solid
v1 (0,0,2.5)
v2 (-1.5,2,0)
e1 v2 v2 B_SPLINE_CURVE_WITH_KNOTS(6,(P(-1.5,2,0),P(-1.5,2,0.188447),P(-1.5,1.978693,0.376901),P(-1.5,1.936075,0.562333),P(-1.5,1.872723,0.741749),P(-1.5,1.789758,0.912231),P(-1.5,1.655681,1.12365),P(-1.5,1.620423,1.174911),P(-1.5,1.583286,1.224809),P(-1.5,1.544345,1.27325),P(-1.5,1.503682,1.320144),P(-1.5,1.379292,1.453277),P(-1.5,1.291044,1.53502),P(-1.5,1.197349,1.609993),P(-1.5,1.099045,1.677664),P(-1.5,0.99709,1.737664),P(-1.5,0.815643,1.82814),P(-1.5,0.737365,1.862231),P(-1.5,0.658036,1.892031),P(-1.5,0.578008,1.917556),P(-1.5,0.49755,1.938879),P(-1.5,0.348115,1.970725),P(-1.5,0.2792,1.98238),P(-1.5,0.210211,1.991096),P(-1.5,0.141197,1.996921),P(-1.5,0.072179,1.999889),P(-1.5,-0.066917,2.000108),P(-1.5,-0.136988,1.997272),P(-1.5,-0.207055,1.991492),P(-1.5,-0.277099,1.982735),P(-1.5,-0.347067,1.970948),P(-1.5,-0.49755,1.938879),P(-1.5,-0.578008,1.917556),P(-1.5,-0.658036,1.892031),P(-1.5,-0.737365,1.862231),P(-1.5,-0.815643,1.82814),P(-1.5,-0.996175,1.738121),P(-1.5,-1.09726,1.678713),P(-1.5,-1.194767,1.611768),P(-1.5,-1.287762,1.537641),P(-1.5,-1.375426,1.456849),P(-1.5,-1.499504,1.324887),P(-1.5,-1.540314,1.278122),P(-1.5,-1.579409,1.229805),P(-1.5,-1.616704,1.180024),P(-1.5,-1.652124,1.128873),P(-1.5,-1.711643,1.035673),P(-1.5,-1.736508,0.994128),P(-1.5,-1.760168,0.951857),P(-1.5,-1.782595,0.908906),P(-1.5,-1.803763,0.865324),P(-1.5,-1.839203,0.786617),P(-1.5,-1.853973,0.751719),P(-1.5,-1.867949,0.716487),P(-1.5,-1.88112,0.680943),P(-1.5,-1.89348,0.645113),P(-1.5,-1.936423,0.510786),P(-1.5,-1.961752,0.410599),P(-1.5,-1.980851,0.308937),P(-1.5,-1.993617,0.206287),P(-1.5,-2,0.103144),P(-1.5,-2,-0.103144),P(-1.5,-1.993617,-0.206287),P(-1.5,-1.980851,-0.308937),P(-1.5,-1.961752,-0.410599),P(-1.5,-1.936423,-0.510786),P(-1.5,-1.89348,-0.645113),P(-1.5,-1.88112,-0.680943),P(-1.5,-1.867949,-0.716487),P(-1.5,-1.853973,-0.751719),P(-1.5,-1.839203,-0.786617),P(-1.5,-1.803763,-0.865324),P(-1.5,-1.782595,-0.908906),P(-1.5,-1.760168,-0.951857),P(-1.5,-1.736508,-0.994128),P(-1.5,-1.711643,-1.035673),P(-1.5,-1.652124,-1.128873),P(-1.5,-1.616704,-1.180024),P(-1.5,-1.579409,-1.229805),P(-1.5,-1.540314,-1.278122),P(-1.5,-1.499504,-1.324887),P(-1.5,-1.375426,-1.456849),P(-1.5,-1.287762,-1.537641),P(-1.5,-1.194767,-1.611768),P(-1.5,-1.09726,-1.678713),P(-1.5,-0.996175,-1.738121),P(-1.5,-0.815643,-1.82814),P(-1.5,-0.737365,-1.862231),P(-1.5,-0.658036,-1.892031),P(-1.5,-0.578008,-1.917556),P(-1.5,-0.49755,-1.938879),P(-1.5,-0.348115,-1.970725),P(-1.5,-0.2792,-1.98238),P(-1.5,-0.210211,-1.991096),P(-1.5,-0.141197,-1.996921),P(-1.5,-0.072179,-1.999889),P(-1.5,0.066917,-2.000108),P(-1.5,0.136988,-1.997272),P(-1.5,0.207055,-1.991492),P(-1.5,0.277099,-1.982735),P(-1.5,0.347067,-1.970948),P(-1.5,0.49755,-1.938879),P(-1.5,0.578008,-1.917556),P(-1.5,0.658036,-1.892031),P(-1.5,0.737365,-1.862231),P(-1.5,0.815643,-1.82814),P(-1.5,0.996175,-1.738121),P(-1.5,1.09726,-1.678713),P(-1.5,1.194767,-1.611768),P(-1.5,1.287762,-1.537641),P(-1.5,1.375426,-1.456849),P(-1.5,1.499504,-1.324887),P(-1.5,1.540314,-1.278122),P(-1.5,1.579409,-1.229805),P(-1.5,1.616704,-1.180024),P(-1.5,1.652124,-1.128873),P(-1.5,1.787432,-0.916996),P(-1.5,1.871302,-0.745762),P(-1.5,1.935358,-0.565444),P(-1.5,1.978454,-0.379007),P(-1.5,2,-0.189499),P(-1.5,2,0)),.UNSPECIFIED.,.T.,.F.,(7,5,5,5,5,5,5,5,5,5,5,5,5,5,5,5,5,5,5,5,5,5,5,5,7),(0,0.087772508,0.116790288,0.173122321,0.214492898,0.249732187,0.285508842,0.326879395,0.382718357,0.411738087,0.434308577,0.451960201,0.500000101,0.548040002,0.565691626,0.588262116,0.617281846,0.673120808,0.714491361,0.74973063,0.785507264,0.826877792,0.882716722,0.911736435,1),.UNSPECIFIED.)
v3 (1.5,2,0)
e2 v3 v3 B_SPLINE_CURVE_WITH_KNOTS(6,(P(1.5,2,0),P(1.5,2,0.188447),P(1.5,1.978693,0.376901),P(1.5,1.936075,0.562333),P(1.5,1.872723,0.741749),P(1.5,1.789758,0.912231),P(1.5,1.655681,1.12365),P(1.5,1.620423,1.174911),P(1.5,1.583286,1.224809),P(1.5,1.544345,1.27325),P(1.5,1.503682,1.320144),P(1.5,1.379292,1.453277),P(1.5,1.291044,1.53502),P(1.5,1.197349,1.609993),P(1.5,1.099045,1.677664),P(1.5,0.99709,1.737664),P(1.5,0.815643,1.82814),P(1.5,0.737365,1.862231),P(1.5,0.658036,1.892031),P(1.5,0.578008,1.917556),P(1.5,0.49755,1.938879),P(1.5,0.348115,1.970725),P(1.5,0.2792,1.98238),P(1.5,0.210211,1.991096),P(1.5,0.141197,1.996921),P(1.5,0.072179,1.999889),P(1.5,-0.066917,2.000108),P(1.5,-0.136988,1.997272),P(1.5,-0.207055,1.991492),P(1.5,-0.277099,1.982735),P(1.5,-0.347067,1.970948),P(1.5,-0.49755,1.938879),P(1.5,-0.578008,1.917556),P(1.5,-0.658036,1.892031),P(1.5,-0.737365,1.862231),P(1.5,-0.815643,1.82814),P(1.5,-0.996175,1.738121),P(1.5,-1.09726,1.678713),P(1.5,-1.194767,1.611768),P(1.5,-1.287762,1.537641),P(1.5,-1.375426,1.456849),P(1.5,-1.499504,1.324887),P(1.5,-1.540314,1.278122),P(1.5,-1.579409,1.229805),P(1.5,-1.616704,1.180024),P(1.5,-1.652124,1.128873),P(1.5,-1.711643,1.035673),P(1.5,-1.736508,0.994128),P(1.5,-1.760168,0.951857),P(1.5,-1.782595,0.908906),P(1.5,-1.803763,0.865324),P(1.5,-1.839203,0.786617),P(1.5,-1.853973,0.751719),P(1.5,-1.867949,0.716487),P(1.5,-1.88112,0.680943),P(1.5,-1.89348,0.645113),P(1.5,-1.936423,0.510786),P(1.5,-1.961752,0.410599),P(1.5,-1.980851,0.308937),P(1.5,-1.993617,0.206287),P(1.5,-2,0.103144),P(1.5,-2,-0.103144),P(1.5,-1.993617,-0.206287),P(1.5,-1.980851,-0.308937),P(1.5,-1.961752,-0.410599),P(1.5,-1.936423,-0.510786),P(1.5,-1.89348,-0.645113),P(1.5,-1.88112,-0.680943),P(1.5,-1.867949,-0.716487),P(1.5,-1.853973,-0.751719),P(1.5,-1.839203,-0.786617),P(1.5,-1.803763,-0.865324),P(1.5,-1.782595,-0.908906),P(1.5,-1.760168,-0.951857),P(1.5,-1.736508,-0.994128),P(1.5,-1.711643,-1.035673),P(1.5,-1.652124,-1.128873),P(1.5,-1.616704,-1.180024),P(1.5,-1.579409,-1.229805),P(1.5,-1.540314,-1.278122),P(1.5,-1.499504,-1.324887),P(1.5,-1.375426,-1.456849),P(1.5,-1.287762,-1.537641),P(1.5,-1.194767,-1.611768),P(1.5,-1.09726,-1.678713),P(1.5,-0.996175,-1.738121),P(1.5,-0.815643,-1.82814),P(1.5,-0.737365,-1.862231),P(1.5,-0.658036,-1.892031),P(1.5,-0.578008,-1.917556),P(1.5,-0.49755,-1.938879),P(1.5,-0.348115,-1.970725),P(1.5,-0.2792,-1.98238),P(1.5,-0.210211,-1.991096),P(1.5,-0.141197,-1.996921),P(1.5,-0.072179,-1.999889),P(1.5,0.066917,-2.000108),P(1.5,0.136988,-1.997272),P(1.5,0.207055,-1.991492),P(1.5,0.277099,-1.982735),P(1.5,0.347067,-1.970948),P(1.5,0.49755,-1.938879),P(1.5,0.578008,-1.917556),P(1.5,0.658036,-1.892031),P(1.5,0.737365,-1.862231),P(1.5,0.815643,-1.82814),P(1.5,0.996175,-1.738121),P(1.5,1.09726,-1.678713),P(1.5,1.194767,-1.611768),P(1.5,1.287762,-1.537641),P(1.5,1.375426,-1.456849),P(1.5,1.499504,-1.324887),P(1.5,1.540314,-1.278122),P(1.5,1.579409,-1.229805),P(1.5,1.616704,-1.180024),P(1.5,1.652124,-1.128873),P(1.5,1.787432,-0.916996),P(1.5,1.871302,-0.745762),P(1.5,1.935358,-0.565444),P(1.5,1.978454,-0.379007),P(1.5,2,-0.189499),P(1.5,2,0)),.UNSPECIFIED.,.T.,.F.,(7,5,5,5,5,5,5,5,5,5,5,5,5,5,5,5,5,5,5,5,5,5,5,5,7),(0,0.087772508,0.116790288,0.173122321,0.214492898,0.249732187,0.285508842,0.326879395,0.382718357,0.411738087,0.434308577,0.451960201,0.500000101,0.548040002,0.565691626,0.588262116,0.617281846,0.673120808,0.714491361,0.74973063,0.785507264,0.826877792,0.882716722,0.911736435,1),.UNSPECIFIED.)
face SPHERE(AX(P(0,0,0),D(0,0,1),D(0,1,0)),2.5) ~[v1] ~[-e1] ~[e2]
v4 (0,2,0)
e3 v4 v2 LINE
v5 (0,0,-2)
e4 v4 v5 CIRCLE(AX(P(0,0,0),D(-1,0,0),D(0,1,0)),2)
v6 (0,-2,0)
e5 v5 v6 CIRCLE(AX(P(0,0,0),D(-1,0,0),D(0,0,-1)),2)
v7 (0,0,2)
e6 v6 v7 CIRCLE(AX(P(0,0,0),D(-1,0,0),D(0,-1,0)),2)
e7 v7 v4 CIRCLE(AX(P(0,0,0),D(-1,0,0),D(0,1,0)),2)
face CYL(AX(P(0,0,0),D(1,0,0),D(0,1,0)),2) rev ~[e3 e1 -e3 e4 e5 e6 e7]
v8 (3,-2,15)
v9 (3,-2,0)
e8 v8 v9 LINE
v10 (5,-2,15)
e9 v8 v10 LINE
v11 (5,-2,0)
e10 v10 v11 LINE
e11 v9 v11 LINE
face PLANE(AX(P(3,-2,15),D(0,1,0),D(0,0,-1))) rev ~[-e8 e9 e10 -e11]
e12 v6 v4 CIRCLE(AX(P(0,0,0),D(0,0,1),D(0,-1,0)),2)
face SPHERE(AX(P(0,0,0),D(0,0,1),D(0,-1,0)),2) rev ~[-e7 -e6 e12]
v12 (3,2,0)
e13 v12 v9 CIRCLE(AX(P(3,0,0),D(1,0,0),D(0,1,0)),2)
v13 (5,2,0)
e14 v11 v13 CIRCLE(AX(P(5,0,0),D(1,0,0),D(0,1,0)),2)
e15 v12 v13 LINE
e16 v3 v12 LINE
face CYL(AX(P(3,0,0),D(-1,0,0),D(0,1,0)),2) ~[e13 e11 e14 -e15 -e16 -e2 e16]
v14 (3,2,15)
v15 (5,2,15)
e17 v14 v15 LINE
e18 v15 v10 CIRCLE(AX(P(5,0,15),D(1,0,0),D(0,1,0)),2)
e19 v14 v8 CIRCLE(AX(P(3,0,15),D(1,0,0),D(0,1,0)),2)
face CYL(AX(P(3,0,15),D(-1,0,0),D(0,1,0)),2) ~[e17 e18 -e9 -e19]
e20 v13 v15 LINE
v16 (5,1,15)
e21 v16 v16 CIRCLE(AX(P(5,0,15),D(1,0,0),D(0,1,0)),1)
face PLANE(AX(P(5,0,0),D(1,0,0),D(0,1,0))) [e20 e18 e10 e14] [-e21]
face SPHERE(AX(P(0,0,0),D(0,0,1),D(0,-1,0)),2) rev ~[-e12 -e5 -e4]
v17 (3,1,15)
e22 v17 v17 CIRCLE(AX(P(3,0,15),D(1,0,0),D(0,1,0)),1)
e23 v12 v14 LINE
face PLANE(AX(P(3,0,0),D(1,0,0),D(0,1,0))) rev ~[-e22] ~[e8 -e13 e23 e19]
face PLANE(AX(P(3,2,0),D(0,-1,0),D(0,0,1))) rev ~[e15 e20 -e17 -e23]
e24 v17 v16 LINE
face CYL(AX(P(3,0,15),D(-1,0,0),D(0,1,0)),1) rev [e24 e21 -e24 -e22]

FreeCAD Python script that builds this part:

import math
import FreeCAD as App
import Part
import Sketcher

V = App.Vector

doc = App.newDocument("Part")
body = doc.addObject("PartDesign::Body", "Body")

# Sketch on YZ plane
sketch1 = body.newObject("Sketcher::SketchObject", "Sketch")
sketch1.AttachmentSupport = (doc.getObject("YZ_Plane"), [""])
sketch1.MapMode = "FlatFace"
sketch1.addGeometry(Part.ArcOfCircle(Part.Circle(V(0, 0, 0), V(0, 0, 1), 2.5), math.radians(-90), math.radians(90)), False)
sketch1.addGeometry(Part.LineSegment(V(0, 2.5, 0), V(0, 2, 0)), False)
sketch1.addGeometry(Part.ArcOfCircle(Part.Circle(V(0, 0, 0), V(0, 0, 1), 2), math.radians(-90), math.radians(90)), False)
sketch1.addGeometry(Part.LineSegment(V(0, -2, 0), V(0, -2.5, 0)), False)
sketch1.addConstraint(Sketcher.Constraint("Coincident", 0, 2, 1, 1))
sketch1.addConstraint(Sketcher.Constraint("Coincident", 1, 2, 2, 2))
sketch1.addConstraint(Sketcher.Constraint("Coincident", 2, 1, 3, 1))
sketch1.addConstraint(Sketcher.Constraint("Coincident", 3, 2, 0, 1))
sketch1.addConstraint(Sketcher.Constraint("Vertical", 1))
sketch1.addConstraint(Sketcher.Constraint("Vertical", 3))
sketch1.addConstraint(Sketcher.Constraint("Coincident", 0, 3, -1, 1))
sketch1.addConstraint(Sketcher.Constraint("Coincident", 2, 3, -1, 1))
sketch1.addConstraint(Sketcher.Constraint("PointOnObject", 0, 2, -2))
sketch1.addConstraint(Sketcher.Constraint("PointOnObject", 2, 1, -2))
sketch1.addConstraint(Sketcher.Constraint("Radius", 2, 2.0))
sketch1.addConstraint(Sketcher.Constraint("Radius", 0, 2.5))
revolution = body.newObject("PartDesign::Revolution", "Revolution")
revolution.Profile = sketch1
revolution.ReferenceAxis = (sketch1, ["V_Axis"])
revolution.Angle = 360

# Sketch on YZ plane
sketch2 = body.newObject("Sketcher::SketchObject", "Sketch001")
sketch2.AttachmentSupport = (doc.getObject("YZ_Plane"), [""])
sketch2.MapMode = "FlatFace"
sketch2.addGeometry(Part.Circle(V(0, 0, 0), V(0, 0, 1), 2), False)
sketch2.addConstraint(Sketcher.Constraint("Coincident", 0, 3, -1, 1))
sketch2.addConstraint(Sketcher.Constraint("Diameter", 0, 4.0))
pocket1 = body.newObject("PartDesign::Pocket", "Pocket")
pocket1.Profile = sketch2
pocket1.Length = 2.5

# Sketch on YZ plane
sketch3 = body.newObject("Sketcher::SketchObject", "Sketch002")
sketch3.AttachmentSupport = (doc.getObject("YZ_Plane"), [""])
sketch3.MapMode = "FlatFace"
sketch3.addGeometry(Part.Circle(V(0, 0, 0), V(0, 0, 1), 2), False)
sketch3.addConstraint(Sketcher.Constraint("Coincident", 0, 3, -1, 1))
sketch3.addConstraint(Sketcher.Constraint("Diameter", 0, 4.0))
pad1 = body.newObject("PartDesign::Pad", "Pad")
pad1.Profile = sketch3
pad1.Length = 3

# Sketch on YZ plane
sketch4 = body.newObject("Sketcher::SketchObject", "Sketch003")
sketch4.AttachmentSupport = (doc.getObject("YZ_Plane"), [""])
sketch4.MapMode = "FlatFace"
sketch4.AttachmentOffset = App.Placement(V(0, 0, 3), App.Rotation())
sketch4.addGeometry(Part.ArcOfCircle(Part.Circle(V(0, 0, 0), V(0, 0, 1), 2), math.radians(180), math.radians(360)), False)
sketch4.addGeometry(Part.LineSegment(V(2, 0, 0), V(2, 15, 0)), False)
sketch4.addGeometry(Part.ArcOfCircle(Part.Circle(V(0, 15, 0), V(0, 0, 1), 2), math.radians(0), math.radians(180)), False)
sketch4.addGeometry(Part.LineSegment(V(-2, 15, 0), V(-2, 0, 0)), False)
sketch4.addGeometry(Part.Circle(V(0, 15, 0), V(0, 0, 1), 1), False)
sketch4.addConstraint(Sketcher.Constraint("Tangent", 0, 2, 1, 1))
sketch4.addConstraint(Sketcher.Constraint("Tangent", 1, 2, 2, 1))
sketch4.addConstraint(Sketcher.Constraint("Tangent", 2, 2, 3, 1))
sketch4.addConstraint(Sketcher.Constraint("Tangent", 3, 2, 0, 1))
sketch4.addConstraint(Sketcher.Constraint("Vertical", 1))
sketch4.addConstraint(Sketcher.Constraint("Vertical", 3))
sketch4.addConstraint(Sketcher.Constraint("Coincident", 0, 3, -1, 1))
sketch4.addConstraint(Sketcher.Constraint("Coincident", 4, 3, 2, 3))
sketch4.addConstraint(Sketcher.Constraint("Diameter", 4, 2.0))
sketch4.addConstraint(Sketcher.Constraint("Radius", 0, 2.0))
sketch4.addConstraint(Sketcher.Constraint("DistanceY", 1, 1, 1, 2, 15.0))
pad2 = body.newObject("PartDesign::Pad", "Pad001")
pad2.Profile = sketch4
pad2.Length = 2

# Sketch on YZ plane
sketch5 = body.newObject("Sketcher::SketchObject", "Sketch004")
sketch5.AttachmentSupport = (doc.getObject("YZ_Plane"), [""])
sketch5.MapMode = "FlatFace"
sketch5.addGeometry(Part.LineSegment(V(0, 2, 0), V(0, -2, 0)), False)
sketch5.addGeometry(Part.ArcOfCircle(Part.Circle(V(0, 0, 0), V(0, 0, 1), 2), math.radians(180), math.radians(270)), False)
sketch5.addGeometry(Part.ArcOfCircle(Part.Circle(V(0, 0, 0), V(0, 0, 1), 2), math.radians(90), math.radians(180)), False)
sketch5.addConstraint(Sketcher.Constraint("Coincident", 0, 2, 1, 2))
sketch5.addConstraint(Sketcher.Constraint("Tangent", 1, 1, 2, 2))
sketch5.addConstraint(Sketcher.Constraint("Coincident", 2, 1, 0, 1))
sketch5.addConstraint(Sketcher.Constraint("Vertical", 0))
sketch5.addConstraint(Sketcher.Constraint("Coincident", 1, 3, -1, 1))
sketch5.addConstraint(Sketcher.Constraint("Equal", 1, 2))
sketch5.addConstraint(Sketcher.Constraint("PointOnObject", 0, 2, -2))
sketch5.addConstraint(Sketcher.Constraint("PointOnObject", 1, 1, -1))
sketch5.addConstraint(Sketcher.Constraint("Radius", 1, 2.0))
groove = body.newObject("PartDesign::Groove", "Groove")
groove.Profile = sketch5
groove.ReferenceAxis = (sketch5, ["V_Axis"])
groove.Angle = 360

doc.recompute()
